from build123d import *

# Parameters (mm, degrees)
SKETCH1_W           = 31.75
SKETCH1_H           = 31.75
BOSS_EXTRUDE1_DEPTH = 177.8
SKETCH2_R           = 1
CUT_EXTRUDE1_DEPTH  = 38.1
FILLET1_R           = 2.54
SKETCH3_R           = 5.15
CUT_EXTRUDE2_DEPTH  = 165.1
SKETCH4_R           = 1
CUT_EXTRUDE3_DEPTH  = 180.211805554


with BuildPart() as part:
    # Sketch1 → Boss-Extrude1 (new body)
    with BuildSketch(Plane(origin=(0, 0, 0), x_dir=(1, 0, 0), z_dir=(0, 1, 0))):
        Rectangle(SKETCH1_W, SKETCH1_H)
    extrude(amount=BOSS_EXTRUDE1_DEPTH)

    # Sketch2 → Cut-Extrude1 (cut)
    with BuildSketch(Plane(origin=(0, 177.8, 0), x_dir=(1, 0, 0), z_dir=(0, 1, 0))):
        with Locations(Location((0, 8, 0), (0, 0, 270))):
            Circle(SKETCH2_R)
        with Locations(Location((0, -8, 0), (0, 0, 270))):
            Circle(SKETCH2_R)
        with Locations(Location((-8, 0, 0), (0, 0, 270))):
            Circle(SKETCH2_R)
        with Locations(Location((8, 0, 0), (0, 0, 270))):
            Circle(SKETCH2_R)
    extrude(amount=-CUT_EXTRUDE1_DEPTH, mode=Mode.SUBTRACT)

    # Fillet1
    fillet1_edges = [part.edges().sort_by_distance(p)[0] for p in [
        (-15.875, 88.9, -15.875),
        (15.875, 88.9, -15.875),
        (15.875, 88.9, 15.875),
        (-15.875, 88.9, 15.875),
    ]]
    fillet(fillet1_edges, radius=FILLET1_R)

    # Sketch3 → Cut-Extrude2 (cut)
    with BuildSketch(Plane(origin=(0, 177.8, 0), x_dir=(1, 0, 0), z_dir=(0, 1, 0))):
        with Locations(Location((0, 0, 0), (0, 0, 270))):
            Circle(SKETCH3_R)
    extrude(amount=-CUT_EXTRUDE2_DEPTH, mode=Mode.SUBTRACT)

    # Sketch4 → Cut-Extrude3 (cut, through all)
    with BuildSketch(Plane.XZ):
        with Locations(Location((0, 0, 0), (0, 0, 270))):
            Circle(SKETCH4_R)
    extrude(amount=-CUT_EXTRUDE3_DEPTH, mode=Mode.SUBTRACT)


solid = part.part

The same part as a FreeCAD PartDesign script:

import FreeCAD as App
import Part
import Sketcher
from FreeCAD import Vector
Q = App.Units.Quantity


def edges_at(feature, points):
    """Names of the edges that pass closest to the given points."""
    edges = feature.Shape.Edges
    near = lambda p: min(range(len(edges)), key=lambda i: edges[i].distToShape(Part.Vertex(*p))[0])
    return sorted({f"Edge{near(p) + 1}" for p in points})

doc = App.newDocument("Part")
body = doc.addObject("PartDesign::Body", "Body")

sketch1 = doc.addObject("Sketcher::SketchObject", "Sketch")
body.addObject(sketch1)
sketch1.AttachmentSupport = (doc.XZ_Plane, [""])
sketch1.MapMode = "FlatFace"
sketch1.addGeometry([
    Part.LineSegment(Vector(-15.875, -15.875, 0), Vector(-15.875, 15.875, 0)),
    Part.LineSegment(Vector(-15.875, 15.875, 0), Vector(15.875, 15.875, 0)),
    Part.LineSegment(Vector(15.875, 15.875, 0), Vector(15.875, -15.875, 0)),
    Part.LineSegment(Vector(15.875, -15.875, 0), Vector(-15.875, -15.875, 0)),
], False)
sketch1.addConstraint([
    Sketcher.Constraint("Coincident", 0, 2, 1, 1),
    Sketcher.Constraint("Coincident", 1, 2, 2, 1),
    Sketcher.Constraint("Coincident", 2, 2, 3, 1),
    Sketcher.Constraint("Coincident", 3, 2, 0, 1),
    Sketcher.Constraint("Vertical", 0),
    Sketcher.Constraint("Horizontal", 1),
    Sketcher.Constraint("Vertical", 2),
    Sketcher.Constraint("Horizontal", 3),
    Sketcher.Constraint("Symmetric", 0, 2, 2, 2, -1, 1),
    Sketcher.Constraint("Equal", 3, 0),
    Sketcher.Constraint("DistanceX", 1, 1, 1, 2, Q("1.25 in")),
])
pad1 = doc.addObject("PartDesign::Pad", "Pad")
body.addObject(pad1)
pad1.Profile = sketch1
pad1.Length = Q("7 in")
pad1.Reversed = True

sketch2 = doc.addObject("Sketcher::SketchObject", "Sketch001")
body.addObject(sketch2)
sketch2.AttachmentSupport = (doc.XZ_Plane, [""])
sketch2.MapMode = "FlatFace"
sketch2.AttachmentOffset = App.Placement(Vector(0, 0, -7 * 25.4), App.Rotation())
sketch2.addGeometry([
    Part.Circle(Vector(0, -8, 0), Vector(0, 0, 1), 1),
    Part.Circle(Vector(0, 8, 0), Vector(0, 0, 1), 1),
    Part.Circle(Vector(-8, 0, 0), Vector(0, 0, 1), 1),
    Part.Circle(Vector(8, 0, 0), Vector(0, 0, 1), 1),
], False)
sketch2.addConstraint([
    Sketcher.Constraint("Equal", 0, 1),
    Sketcher.Constraint("Equal", 1, 2),
    Sketcher.Constraint("Equal", 2, 3),
    Sketcher.Constraint("Symmetric", 0, 3, 1, 3, -1, 1),
    Sketcher.Constraint("Symmetric", 2, 3, 3, 3, -1, 1),
    Sketcher.Constraint("PointOnObject", 0, 3, -2),
    Sketcher.Constraint("PointOnObject", 2, 3, -1),
    Sketcher.Constraint("Diameter", 0, 2.0),
    Sketcher.Constraint("DistanceY", 0, 3, -1, 1, 8.0),
    Sketcher.Constraint("DistanceX", 2, 3, -1, 1, 8.0),
])
pocket1 = doc.addObject("PartDesign::Pocket", "Pocket")
body.addObject(pocket1)
pocket1.Profile = sketch2
pocket1.Length = Q("1.5 in")
pocket1.Reversed = True
doc.recompute()

fillet = doc.addObject("PartDesign::Fillet", "Fillet")
body.addObject(fillet)
fillet.Base = (pocket1, edges_at(pocket1, [
    (-15.875, 88.9, -15.875),
    (15.875, 88.9, -15.875),
    (15.875, 88.9, 15.875),
    (-15.875, 88.9, 15.875),
]))
fillet.Radius = Q("0.1 in")

sketch3 = doc.addObject("Sketcher::SketchObject", "Sketch002")
body.addObject(sketch3)
sketch3.AttachmentSupport = (doc.XZ_Plane, [""])
sketch3.MapMode = "FlatFace"
sketch3.AttachmentOffset = App.Placement(Vector(0, 0, -7 * 25.4), App.Rotation())
sketch3.addGeometry(Part.Circle(Vector(0, 0, 0), Vector(0, 0, 1), 5.15), False)
sketch3.addConstraint([
    Sketcher.Constraint("Coincident", 0, 3, -1, 1),
    Sketcher.Constraint("Diameter", 0, 10.3),
])
pocket2 = doc.addObject("PartDesign::Pocket", "Pocket001")
body.addObject(pocket2)
pocket2.Profile = sketch3
pocket2.Length = Q("6.5 in")
pocket2.Reversed = True

sketch4 = doc.addObject("Sketcher::SketchObject", "Sketch003")
body.addObject(sketch4)
sketch4.AttachmentSupport = (doc.XZ_Plane, [""])
sketch4.MapMode = "FlatFace"
sketch4.addGeometry(Part.Circle(Vector(0, 0, 0), Vector(0, 0, 1), 1), False)
sketch4.addConstraint([
    Sketcher.Constraint("Coincident", 0, 3, -1, 1),
    Sketcher.Constraint("Diameter", 0, 2.0),
])
pocket3 = doc.addObject("PartDesign::Pocket", "Pocket002")
body.addObject(pocket3)
pocket3.Profile = sketch4
pocket3.Type = "ThroughAll"

doc.recompute()
